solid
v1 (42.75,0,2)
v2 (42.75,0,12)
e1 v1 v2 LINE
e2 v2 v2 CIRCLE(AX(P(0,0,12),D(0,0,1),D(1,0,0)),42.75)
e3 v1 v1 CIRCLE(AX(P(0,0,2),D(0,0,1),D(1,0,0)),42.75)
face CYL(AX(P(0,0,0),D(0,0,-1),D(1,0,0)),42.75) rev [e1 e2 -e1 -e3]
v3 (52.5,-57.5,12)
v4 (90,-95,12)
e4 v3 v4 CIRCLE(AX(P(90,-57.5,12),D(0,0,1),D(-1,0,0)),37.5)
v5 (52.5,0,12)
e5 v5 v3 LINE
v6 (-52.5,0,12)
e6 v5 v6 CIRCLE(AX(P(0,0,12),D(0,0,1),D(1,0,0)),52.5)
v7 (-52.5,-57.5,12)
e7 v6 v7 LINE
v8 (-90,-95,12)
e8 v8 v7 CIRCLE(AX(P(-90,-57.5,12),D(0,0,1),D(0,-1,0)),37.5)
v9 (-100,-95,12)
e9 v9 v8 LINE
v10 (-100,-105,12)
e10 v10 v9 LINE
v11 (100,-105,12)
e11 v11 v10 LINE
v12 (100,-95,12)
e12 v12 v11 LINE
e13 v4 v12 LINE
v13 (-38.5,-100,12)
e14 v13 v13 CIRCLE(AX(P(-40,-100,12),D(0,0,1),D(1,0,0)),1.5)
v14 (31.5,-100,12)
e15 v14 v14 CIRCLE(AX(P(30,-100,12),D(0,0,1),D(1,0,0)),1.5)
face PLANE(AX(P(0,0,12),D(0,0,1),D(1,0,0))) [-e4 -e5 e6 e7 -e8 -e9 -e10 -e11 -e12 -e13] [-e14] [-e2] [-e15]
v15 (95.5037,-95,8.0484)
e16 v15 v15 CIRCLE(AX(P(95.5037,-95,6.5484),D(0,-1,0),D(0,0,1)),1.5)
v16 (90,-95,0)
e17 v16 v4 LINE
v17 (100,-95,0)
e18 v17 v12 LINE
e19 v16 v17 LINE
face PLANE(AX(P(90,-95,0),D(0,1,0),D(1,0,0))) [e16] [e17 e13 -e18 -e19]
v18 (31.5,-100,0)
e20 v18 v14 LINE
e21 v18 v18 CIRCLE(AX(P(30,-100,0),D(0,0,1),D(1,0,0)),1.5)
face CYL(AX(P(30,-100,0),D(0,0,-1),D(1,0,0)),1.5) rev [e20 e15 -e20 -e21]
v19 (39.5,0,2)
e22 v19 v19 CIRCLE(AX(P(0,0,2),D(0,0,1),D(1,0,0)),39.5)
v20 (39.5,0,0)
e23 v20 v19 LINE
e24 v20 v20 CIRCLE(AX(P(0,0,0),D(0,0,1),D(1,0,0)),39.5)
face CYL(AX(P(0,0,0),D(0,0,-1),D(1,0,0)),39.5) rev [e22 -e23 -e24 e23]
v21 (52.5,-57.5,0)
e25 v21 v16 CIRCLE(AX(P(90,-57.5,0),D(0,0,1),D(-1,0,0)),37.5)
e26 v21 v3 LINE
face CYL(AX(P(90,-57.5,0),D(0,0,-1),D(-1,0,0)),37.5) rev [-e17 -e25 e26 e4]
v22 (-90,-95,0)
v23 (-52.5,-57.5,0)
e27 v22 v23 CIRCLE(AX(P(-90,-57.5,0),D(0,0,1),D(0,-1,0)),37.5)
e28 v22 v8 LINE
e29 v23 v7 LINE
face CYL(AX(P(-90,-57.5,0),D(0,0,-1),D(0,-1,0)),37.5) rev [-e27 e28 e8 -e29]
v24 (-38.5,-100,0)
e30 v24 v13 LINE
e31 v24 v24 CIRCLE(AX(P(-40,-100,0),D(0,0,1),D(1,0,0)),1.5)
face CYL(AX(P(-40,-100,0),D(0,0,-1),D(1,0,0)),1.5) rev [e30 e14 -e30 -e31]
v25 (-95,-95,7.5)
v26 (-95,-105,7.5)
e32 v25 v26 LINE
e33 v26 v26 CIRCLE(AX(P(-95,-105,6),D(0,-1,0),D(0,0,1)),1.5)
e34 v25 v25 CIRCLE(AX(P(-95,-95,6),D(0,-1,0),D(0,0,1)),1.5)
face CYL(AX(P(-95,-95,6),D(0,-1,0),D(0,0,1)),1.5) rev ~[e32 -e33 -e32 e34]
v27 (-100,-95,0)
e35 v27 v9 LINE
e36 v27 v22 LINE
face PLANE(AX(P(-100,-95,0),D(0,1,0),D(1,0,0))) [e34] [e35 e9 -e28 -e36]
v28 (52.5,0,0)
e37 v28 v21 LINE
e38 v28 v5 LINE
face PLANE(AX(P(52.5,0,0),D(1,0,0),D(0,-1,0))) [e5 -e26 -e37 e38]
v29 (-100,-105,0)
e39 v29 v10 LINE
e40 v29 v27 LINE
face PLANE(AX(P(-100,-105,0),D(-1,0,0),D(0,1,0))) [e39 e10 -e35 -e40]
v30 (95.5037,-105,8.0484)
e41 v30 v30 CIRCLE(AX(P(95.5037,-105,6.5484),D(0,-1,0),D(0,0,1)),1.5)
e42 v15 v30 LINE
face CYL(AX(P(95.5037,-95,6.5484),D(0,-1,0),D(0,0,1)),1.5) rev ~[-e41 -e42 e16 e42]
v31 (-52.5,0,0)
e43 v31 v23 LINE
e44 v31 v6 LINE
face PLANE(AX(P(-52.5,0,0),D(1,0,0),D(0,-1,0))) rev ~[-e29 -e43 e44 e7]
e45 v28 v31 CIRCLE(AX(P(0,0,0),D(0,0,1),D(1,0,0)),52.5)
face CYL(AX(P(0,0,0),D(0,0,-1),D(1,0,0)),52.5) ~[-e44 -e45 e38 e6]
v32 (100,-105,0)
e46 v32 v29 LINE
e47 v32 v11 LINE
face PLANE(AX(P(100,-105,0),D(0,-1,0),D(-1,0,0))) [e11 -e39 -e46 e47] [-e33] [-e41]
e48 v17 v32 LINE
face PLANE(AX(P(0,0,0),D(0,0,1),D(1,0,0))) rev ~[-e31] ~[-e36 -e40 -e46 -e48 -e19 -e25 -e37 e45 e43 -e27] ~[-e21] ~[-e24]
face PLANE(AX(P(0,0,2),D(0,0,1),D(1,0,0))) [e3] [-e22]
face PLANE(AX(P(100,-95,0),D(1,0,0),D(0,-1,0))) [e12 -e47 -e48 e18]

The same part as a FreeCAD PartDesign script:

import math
import FreeCAD as App
import Part
import Sketcher

V = App.Vector

doc = App.newDocument("Part")
params = doc.addObject("Spreadsheet::Sheet", "Params")
for row, (alias, value) in enumerate([
    ("sketch1_diameter", "3 mm"),
    ("sketch1_diameter2", "85.5 mm"),
    ("sketch1_radius", "37.5 mm"),
    ("sketch1_radius2", "52.5 mm"),
    ("sketch1_width", "200 mm"),
    ("pad1_length", "12 mm"),
    ("sketch2_diameter", "79 mm"),
    ("sketch2_diameter2", "85.5 mm"),
    ("pad2_length", "2 mm"),
    ("sketch3_diameter", "3 mm"),
    ("hole_diameter", "3 mm"),
    ("hole_depth", "10 mm"),
    ("sketch4_diameter", "3 mm"),
    ("hole2_diameter", "3 mm"),
    ("hole2_depth", "10 mm"),
], start=1):
    params.set(f"A{row}", alias)
    params.set(f"B{row}", "=" + value)
    params.setAlias(f"B{row}", alias)

body = doc.addObject("PartDesign::Body", "Body")

# Sketch on XY plane
sketch1 = doc.addObject("Sketcher::SketchObject", "Sketch")
body.addObject(sketch1)
sketch1.AttachmentSupport = (doc.XY_Plane, [""])
sketch1.MapMode = "FlatFace"
sketch1.addGeometry(Part.LineSegment(V(-100, -105, 0), V(100, -105, 0)), False)
sketch1.addGeometry(Part.LineSegment(V(100, -105, 0), V(100, -95, 0)), False)
sketch1.addGeometry(Part.LineSegment(V(100, -95, 0), V(90, -95, 0)), False)
sketch1.addGeometry(Part.ArcOfCircle(Part.Circle(V(90, -57.5, 0), V(0, 0, 1), 37.5), math.radians(180), math.radians(270)), False)
sketch1.addGeometry(Part.LineSegment(V(52.5, -57.5, 0), V(52.5, 0, 0)), False)
sketch1.addGeometry(Part.ArcOfCircle(Part.Circle(V(0, 0, 0), V(0, 0, 1), 52.5), math.radians(0), math.radians(180)), False)
sketch1.addGeometry(Part.LineSegment(V(-52.5, 0, 0), V(-52.5, -57.5, 0)), False)
sketch1.addGeometry(Part.ArcOfCircle(Part.Circle(V(-90, -57.5, 0), V(0, 0, 1), 37.5), math.radians(-90), math.radians(0)), False)
sketch1.addGeometry(Part.LineSegment(V(-90, -95, 0), V(-100, -95, 0)), False)
sketch1.addGeometry(Part.LineSegment(V(-100, -95, 0), V(-100, -105, 0)), False)
sketch1.addGeometry(Part.Circle(V(-40, -100, 0), V(0, 0, 1), 1.5), False)
sketch1.addGeometry(Part.Circle(V(30, -100, 0), V(0, 0, 1), 1.5), False)
sketch1.addGeometry(Part.Circle(V(0, 0, 0), V(0, 0, 1), 42.8), False)
sketch1.addConstraint(Sketcher.Constraint("Coincident", 0, 2, 1, 1))
sketch1.addConstraint(Sketcher.Constraint("Coincident", 1, 2, 2, 1))
sketch1.addConstraint(Sketcher.Constraint("Tangent", 2, 2, 3, 2))
sketch1.addConstraint(Sketcher.Constraint("Tangent", 3, 1, 4, 1))
sketch1.addConstraint(Sketcher.Constraint("Tangent", 4, 2, 5, 1))
sketch1.addConstraint(Sketcher.Constraint("Tangent", 5, 2, 6, 1))
sketch1.addConstraint(Sketcher.Constraint("Tangent", 6, 2, 7, 2))
sketch1.addConstraint(Sketcher.Constraint("Tangent", 7, 1, 8, 1))
sketch1.addConstraint(Sketcher.Constraint("Coincident", 8, 2, 9, 1))
sketch1.addConstraint(Sketcher.Constraint("Coincident", 9, 2, 0, 1))
sketch1.addConstraint(Sketcher.Constraint("Horizontal", 0))
sketch1.addConstraint(Sketcher.Constraint("Vertical", 1))
sketch1.addConstraint(Sketcher.Constraint("Horizontal", 2))
sketch1.addConstraint(Sketcher.Constraint("Vertical", 4))
sketch1.addConstraint(Sketcher.Constraint("Vertical", 6))
sketch1.addConstraint(Sketcher.Constraint("Horizontal", 8))
sketch1.addConstraint(Sketcher.Constraint("Vertical", 9))
sketch1.addConstraint(Sketcher.Constraint("Coincident", 5, 3, -1, 1))
sketch1.addConstraint(Sketcher.Constraint("Coincident", 12, 3, -1, 1))
sketch1.addConstraint(Sketcher.Constraint("Equal", 3, 7))
sketch1.addConstraint(Sketcher.Constraint("Equal", 10, 11))
sketch1.addConstraint(Sketcher.Constraint("Symmetric", 1, 2, 8, 2, -2))
sketch1.addConstraint(Sketcher.Constraint("Horizontal", 10, 3, 11, 3))
sketch1.addConstraint(Sketcher.Constraint("Equal", 8, 1))
sketch1.addConstraint(Sketcher.Constraint("Diameter", 10, 3.0))
sketch1.addConstraint(Sketcher.Constraint("Diameter", 12, 85.5))
sketch1.addConstraint(Sketcher.Constraint("Radius", 3, 37.5))
sketch1.addConstraint(Sketcher.Constraint("Radius", 5, 52.5))
sketch1.addConstraint(Sketcher.Constraint("DistanceX", 0, 1, 0, 2, 200.0))
sketch1.addConstraint(Sketcher.Constraint("DistanceY", 10, 3, -1, 1, 100.0))
sketch1.addConstraint(Sketcher.Constraint("DistanceY", 0, 2, -1, 1, 105.0))
sketch1.addConstraint(Sketcher.Constraint("DistanceX", 10, 3, 11, 3, 70.0))
sketch1.addConstraint(Sketcher.Constraint("DistanceX", 11, 3, 0, 2, 70.0))
sketch1.setExpression("Constraints[24]", "Params.sketch1_diameter")
sketch1.setExpression("Constraints[25]", "Params.sketch1_diameter2")
sketch1.setExpression("Constraints[26]", "Params.sketch1_radius")
sketch1.setExpression("Constraints[27]", "Params.sketch1_radius2")
sketch1.setExpression("Constraints[28]", "Params.sketch1_width")
pad1 = doc.addObject("PartDesign::Pad", "Pad")
body.addObject(pad1)
pad1.Profile = sketch1
pad1.setExpression("Length", "Params.pad1_length")

# Sketch on XY plane
sketch2 = doc.addObject("Sketcher::SketchObject", "Sketch001")
body.addObject(sketch2)
sketch2.AttachmentSupport = (doc.XY_Plane, [""])
sketch2.MapMode = "FlatFace"
sketch2.addGeometry(Part.Circle(V(0, 0, 0), V(0, 0, 1), 43), False)
sketch2.addGeometry(Part.Circle(V(0, 0, 0), V(0, 0, 1), 40), False)
sketch2.addConstraint(Sketcher.Constraint("Coincident", 0, 3, -1, 1))
sketch2.addConstraint(Sketcher.Constraint("Coincident", 1, 3, -1, 1))
sketch2.addConstraint(Sketcher.Constraint("Diameter", 1, 79.0))
sketch2.addConstraint(Sketcher.Constraint("Diameter", 0, 85.5))
sketch2.setExpression("Constraints[2]", "Params.sketch2_diameter")
sketch2.setExpression("Constraints[3]", "Params.sketch2_diameter2")
pad2 = doc.addObject("PartDesign::Pad", "Pad001")
body.addObject(pad2)
pad2.Profile = sketch2
pad2.setExpression("Length", "Params.pad2_length")

# Sketch on XZ plane
sketch3 = doc.addObject("Sketcher::SketchObject", "Sketch002")
body.addObject(sketch3)
sketch3.AttachmentSupport = (doc.XZ_Plane, [""])
sketch3.MapMode = "FlatFace"
sketch3.AttachmentOffset = App.Placement(V(0, 0, 95), App.Rotation())
sketch3.addGeometry(Part.Circle(V(-95, 6, 0), V(0, 0, 1), 1.5), False)
sketch3.addConstraint(Sketcher.Constraint("Diameter", 0, 3.0))
sketch3.addConstraint(Sketcher.Constraint("DistanceX", 0, 3, -1, 1, 95.0))
sketch3.addConstraint(Sketcher.Constraint("DistanceY", -1, 1, 0, 3, 6.0))
sketch3.setExpression("Constraints[0]", "Params.sketch3_diameter")
doc.recompute()
hole = doc.addObject("PartDesign::Hole", "Hole")
body.addObject(hole)
hole.Profile = sketch3
hole.ThreadType = "None"
hole.setExpression("Diameter", "Params.hole_diameter")
hole.DepthType = "Dimension"
hole.setExpression("Depth", "Params.hole_depth")
hole.DrillPoint = "Angled"
hole.DrillPointAngle = 118
hole.Reversed = True

# Sketch on XZ plane
sketch4 = doc.addObject("Sketcher::SketchObject", "Sketch003")
body.addObject(sketch4)
sketch4.AttachmentSupport = (doc.XZ_Plane, [""])
sketch4.MapMode = "FlatFace"
sketch4.AttachmentOffset = App.Placement(V(0, 0, 95), App.Rotation())
sketch4.addGeometry(Part.Circle(V(95.5, 6.5, 0), V(0, 0, 1), 1.5), False)
sketch4.addConstraint(Sketcher.Constraint("Diameter", 0, 3.0))
sketch4.addConstraint(Sketcher.Constraint("DistanceX", -1, 1, 0, 3, 95.5037))
sketch4.addConstraint(Sketcher.Constraint("DistanceY", -1, 1, 0, 3, 6.5484))
sketch4.setExpression("Constraints[0]", "Params.sketch4_diameter")
doc.recompute()
hole2 = doc.addObject("PartDesign::Hole", "Hole001")
body.addObject(hole2)
hole2.Profile = sketch4
hole2.ThreadType = "None"
hole2.setExpression("Diameter", "Params.hole2_diameter")
hole2.DepthType = "Dimension"
hole2.setExpression("Depth", "Params.hole2_depth")
hole2.DrillPoint = "Angled"
hole2.DrillPointAngle = 118
hole2.Reversed = True

doc.recompute()
